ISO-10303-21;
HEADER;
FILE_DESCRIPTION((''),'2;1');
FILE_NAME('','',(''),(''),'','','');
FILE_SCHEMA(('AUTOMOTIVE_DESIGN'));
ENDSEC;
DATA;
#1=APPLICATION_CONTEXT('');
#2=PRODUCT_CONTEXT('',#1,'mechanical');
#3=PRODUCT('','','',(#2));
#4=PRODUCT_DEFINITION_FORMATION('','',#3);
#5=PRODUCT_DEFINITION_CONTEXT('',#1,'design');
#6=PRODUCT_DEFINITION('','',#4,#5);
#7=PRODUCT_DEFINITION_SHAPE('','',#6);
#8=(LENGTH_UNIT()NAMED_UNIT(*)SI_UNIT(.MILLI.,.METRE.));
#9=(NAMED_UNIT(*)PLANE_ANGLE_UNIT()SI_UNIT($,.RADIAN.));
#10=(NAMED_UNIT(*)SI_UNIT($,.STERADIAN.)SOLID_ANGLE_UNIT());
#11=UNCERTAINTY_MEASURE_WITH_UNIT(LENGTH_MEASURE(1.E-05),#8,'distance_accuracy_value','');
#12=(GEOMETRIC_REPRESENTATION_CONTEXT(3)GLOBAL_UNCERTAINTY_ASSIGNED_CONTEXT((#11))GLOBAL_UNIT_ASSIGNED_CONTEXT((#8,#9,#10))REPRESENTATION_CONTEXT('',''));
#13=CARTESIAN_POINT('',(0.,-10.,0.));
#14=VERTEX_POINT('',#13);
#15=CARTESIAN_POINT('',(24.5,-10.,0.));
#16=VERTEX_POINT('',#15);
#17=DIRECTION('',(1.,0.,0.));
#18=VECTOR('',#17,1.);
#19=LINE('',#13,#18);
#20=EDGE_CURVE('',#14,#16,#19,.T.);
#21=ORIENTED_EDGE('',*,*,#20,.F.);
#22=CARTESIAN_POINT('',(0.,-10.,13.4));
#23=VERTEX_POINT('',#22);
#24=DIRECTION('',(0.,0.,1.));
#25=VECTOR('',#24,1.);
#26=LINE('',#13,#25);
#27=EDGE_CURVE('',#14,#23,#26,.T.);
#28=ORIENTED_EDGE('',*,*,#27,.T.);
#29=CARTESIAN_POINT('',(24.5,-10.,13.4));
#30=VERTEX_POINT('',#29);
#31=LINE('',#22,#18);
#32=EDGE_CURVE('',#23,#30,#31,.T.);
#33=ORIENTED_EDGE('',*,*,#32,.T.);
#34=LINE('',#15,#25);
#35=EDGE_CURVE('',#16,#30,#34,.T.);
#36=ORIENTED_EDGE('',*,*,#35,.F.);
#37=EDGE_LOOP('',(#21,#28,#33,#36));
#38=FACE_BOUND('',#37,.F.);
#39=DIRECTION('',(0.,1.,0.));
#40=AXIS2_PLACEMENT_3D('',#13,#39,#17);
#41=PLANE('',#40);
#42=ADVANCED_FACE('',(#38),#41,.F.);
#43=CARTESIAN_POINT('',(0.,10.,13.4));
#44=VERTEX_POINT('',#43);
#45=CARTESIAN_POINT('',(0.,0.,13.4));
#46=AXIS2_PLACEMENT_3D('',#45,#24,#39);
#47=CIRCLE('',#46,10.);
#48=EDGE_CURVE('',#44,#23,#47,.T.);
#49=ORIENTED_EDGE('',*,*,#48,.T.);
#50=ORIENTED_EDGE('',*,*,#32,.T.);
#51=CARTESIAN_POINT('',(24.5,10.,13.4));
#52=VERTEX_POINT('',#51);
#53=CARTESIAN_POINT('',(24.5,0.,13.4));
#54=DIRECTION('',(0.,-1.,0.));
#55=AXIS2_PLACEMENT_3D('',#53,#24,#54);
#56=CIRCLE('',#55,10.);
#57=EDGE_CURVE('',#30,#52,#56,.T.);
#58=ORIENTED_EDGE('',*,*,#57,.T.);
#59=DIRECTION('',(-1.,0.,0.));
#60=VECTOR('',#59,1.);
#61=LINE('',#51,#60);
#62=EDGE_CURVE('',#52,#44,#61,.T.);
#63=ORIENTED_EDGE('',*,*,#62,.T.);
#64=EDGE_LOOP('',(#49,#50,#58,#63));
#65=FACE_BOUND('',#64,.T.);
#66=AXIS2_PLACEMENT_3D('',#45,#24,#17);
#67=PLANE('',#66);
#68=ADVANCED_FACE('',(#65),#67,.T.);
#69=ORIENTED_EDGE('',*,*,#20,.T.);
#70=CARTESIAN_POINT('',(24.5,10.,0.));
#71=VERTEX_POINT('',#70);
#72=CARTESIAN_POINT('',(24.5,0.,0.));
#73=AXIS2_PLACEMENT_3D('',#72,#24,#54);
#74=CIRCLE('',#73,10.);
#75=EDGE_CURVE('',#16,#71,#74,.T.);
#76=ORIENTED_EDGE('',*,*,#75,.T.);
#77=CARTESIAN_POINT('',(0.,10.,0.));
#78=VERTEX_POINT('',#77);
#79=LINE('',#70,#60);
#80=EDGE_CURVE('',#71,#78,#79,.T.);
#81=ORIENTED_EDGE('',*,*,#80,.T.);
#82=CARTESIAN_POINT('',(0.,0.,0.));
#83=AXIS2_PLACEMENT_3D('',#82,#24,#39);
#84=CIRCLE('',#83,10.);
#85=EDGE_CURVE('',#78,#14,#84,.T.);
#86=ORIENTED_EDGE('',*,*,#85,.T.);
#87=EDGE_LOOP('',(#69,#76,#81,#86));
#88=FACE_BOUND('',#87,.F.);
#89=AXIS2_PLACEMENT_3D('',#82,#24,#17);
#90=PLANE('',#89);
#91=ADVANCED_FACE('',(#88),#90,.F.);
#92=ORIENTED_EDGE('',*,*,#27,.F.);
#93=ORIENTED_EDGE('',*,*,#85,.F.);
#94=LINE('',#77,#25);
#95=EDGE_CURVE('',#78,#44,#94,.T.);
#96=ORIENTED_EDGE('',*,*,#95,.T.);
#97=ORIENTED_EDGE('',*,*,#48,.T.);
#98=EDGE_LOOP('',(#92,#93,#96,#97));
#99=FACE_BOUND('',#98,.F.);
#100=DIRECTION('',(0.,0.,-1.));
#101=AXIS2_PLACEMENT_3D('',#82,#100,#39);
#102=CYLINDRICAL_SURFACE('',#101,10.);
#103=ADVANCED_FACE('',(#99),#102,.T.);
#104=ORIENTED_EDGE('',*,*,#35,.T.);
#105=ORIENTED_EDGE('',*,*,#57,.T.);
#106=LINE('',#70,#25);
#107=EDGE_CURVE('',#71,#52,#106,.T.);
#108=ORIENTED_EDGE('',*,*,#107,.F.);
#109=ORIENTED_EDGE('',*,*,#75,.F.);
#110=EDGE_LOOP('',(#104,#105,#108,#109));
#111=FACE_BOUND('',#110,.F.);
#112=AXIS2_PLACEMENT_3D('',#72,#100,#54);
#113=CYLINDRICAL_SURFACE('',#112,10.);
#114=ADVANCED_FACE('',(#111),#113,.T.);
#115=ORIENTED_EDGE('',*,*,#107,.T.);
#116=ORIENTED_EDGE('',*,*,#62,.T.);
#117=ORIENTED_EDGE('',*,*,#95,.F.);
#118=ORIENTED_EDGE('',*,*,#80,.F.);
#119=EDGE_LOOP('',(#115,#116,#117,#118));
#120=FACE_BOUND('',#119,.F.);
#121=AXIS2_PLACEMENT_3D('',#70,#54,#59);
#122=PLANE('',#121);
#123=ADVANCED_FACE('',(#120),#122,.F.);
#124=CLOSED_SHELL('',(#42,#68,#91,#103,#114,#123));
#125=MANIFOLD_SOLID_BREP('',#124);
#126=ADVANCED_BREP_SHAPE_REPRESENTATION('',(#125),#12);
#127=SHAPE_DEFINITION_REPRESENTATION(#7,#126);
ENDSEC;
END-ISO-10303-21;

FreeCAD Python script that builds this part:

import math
import FreeCAD as App
import Part
import Sketcher

V = App.Vector

doc = App.newDocument("Part")
params = doc.addObject("Spreadsheet::Sheet", "Params")
for row, (alias, value) in enumerate([
    ("sketch1_radius", "10 mm"),
    ("sketch1_width", "24.5 mm"),
    ("pad1_length", "13.4 mm"),
], start=1):
    params.set(f"A{row}", alias)
    params.set(f"B{row}", "=" + value)
    params.setAlias(f"B{row}", alias)

body = doc.addObject("PartDesign::Body", "Body")

# Sketch on XY plane
sketch1 = body.newObject("Sketcher::SketchObject", "Sketch")
sketch1.AttachmentSupport = (doc.getObject("XY_Plane"), [""])
sketch1.MapMode = "FlatFace"
sketch1.addGeometry(Part.ArcOfCircle(Part.Circle(V(0, 0, 0), V(0, 0, 1), 10), math.radians(90), math.radians(270)), False)
sketch1.addGeometry(Part.LineSegment(V(0, -10, 0), V(24, -10, 0)), False)
sketch1.addGeometry(Part.ArcOfCircle(Part.Circle(V(24, 0, 0), V(0, 0, 1), 10), math.radians(-90), math.radians(90)), False)
sketch1.addGeometry(Part.LineSegment(V(24, 10, 0), V(0, 10, 0)), False)
sketch1.addConstraint(Sketcher.Constraint("Tangent", 0, 2, 1, 1))
sketch1.addConstraint(Sketcher.Constraint("Tangent", 1, 2, 2, 1))
sketch1.addConstraint(Sketcher.Constraint("Tangent", 2, 2, 3, 1))
sketch1.addConstraint(Sketcher.Constraint("Tangent", 3, 2, 0, 1))
sketch1.addConstraint(Sketcher.Constraint("Horizontal", 1))
sketch1.addConstraint(Sketcher.Constraint("Horizontal", 3))
sketch1.addConstraint(Sketcher.Constraint("Coincident", 0, 3, -1, 1))
sketch1.addConstraint(Sketcher.Constraint("Radius", 0, 10.0))
sketch1.addConstraint(Sketcher.Constraint("DistanceX", 1, 1, 1, 2, 24.5))
sketch1.setExpression("Constraints[7]", "Params.sketch1_radius")
sketch1.setExpression("Constraints[8]", "Params.sketch1_width")
pad1 = body.newObject("PartDesign::Pad", "Pad")
pad1.Profile = sketch1
pad1.setExpression("Length", "Params.pad1_length")

doc.recompute()
